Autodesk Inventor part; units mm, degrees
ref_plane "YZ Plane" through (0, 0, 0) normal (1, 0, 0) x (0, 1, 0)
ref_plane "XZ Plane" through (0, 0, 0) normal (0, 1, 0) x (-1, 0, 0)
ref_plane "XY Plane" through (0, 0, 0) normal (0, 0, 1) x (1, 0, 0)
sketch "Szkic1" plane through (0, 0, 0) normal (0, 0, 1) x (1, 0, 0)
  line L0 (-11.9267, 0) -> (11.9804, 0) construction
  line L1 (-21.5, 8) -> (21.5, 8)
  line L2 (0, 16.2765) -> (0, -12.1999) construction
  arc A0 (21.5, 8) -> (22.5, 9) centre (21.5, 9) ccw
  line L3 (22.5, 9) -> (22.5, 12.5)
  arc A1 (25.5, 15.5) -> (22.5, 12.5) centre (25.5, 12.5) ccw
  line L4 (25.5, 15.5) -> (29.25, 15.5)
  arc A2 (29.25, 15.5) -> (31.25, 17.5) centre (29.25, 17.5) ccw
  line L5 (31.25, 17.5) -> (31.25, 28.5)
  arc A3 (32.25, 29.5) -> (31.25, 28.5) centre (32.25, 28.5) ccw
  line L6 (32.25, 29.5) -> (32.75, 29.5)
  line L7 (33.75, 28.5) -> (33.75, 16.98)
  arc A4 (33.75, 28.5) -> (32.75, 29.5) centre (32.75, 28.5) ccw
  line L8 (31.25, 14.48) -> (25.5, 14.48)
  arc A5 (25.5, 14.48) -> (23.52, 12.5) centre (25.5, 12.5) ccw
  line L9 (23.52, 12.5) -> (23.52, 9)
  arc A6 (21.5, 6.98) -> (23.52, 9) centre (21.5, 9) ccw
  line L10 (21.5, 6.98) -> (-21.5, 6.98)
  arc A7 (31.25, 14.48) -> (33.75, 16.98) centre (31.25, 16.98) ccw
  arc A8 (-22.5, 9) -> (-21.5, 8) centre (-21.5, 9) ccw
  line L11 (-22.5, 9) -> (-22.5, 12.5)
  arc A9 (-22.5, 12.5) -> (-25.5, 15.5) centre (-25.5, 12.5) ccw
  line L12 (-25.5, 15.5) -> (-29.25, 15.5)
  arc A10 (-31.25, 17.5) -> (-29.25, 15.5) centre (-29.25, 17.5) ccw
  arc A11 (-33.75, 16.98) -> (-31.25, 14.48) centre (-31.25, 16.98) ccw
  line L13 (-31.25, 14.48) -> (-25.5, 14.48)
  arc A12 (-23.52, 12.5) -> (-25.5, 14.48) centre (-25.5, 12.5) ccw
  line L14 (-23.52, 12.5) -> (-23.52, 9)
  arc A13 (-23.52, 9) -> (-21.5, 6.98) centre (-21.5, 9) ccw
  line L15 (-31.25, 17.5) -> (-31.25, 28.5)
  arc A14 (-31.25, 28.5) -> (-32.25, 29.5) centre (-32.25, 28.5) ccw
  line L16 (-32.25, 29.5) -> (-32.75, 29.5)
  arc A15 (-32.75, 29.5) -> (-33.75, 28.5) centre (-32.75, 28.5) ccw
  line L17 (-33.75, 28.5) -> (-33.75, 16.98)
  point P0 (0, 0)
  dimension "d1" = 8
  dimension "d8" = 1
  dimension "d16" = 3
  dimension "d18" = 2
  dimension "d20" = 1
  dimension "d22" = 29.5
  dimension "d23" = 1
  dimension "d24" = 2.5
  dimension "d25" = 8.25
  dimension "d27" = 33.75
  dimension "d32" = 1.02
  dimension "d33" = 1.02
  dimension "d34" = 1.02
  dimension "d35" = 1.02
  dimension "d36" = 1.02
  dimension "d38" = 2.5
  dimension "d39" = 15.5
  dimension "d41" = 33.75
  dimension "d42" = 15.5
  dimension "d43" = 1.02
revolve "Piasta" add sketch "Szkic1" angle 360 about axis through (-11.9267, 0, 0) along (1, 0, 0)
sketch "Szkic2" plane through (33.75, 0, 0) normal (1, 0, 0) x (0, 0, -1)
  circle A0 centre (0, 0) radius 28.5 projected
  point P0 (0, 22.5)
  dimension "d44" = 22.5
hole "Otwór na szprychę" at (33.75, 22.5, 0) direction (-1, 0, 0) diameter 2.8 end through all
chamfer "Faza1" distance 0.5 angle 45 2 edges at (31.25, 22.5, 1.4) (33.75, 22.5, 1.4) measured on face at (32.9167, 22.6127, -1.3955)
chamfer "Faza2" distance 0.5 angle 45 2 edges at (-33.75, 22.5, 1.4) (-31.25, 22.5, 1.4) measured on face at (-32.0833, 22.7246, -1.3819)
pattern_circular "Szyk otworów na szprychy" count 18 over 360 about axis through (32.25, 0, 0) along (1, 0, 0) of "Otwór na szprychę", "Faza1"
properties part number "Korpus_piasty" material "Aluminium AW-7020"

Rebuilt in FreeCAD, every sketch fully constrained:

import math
import FreeCAD as App
import Part
import Sketcher
Q = App.Units.Quantity


def edges_at(feature, points):
    """Names of the edges that pass closest to the given points."""
    edges = feature.Shape.Edges
    near = lambda p: min(range(len(edges)), key=lambda i: edges[i].distToShape(Part.Vertex(*p))[0])
    return sorted({f"Edge{near(p) + 1}" for p in points})

doc = App.newDocument("Part")
body = doc.addObject("PartDesign::Body", "Body")

sketch1 = doc.addObject("Sketcher::SketchObject", "Sketch")
body.addObject(sketch1)
sketch1.AttachmentSupport = (doc.XY_Plane, [""])
sketch1.MapMode = "FlatFace"
sketch1.addGeometry(Part.LineSegment(App.Vector(21.5, 8, 0), App.Vector(-21.5, 8, 0)), False)
sketch1.addGeometry(Part.ArcOfCircle(Part.Circle(App.Vector(-21.5, 9, 0), App.Vector(0, 0, 1), 1), math.radians(180), math.radians(270)), False)
sketch1.addGeometry(Part.LineSegment(App.Vector(-22.5, 9, 0), App.Vector(-22.5, 12.5, 0)), False)
sketch1.addGeometry(Part.ArcOfCircle(Part.Circle(App.Vector(-25.5, 12.5, 0), App.Vector(0, 0, 1), 3), math.radians(0), math.radians(90)), False)
sketch1.addGeometry(Part.LineSegment(App.Vector(-25.5, 15.5, 0), App.Vector(-29.2, 15.5, 0)), False)
sketch1.addGeometry(Part.ArcOfCircle(Part.Circle(App.Vector(-29.2, 17.5, 0), App.Vector(0, 0, 1), 2), math.radians(180), math.radians(270)), False)
sketch1.addGeometry(Part.LineSegment(App.Vector(-31.2, 17.5, 0), App.Vector(-31.2, 28.5, 0)), False)
sketch1.addGeometry(Part.ArcOfCircle(Part.Circle(App.Vector(-32.2, 28.5, 0), App.Vector(0, 0, 1), 1), math.radians(0), math.radians(90)), False)
sketch1.addGeometry(Part.LineSegment(App.Vector(-32.2, 29.5, 0), App.Vector(-32.8, 29.5, 0)), False)
sketch1.addGeometry(Part.ArcOfCircle(Part.Circle(App.Vector(-32.8, 28.5, 0), App.Vector(0, 0, 1), 1), math.radians(90), math.radians(180)), False)
sketch1.addGeometry(Part.LineSegment(App.Vector(-33.8, 28.5, 0), App.Vector(-33.8, 17, 0)), False)
sketch1.addGeometry(Part.ArcOfCircle(Part.Circle(App.Vector(-31.2, 17, 0), App.Vector(0, 0, 1), 2.5), math.radians(180), math.radians(270)), False)
sketch1.addGeometry(Part.LineSegment(App.Vector(-31.2, 14.5, 0), App.Vector(-25.5, 14.5, 0)), False)
sketch1.addGeometry(Part.ArcOfCircle(Part.Circle(App.Vector(-25.5, 12.5, 0), App.Vector(0, 0, 1), 2), math.radians(0), math.radians(90)), False)
sketch1.addGeometry(Part.LineSegment(App.Vector(-23.5, 12.5, 0), App.Vector(-23.5, 9, 0)), False)
sketch1.addGeometry(Part.ArcOfCircle(Part.Circle(App.Vector(-21.5, 9, 0), App.Vector(0, 0, 1), 2), math.radians(180), math.radians(270)), False)
sketch1.addGeometry(Part.LineSegment(App.Vector(-21.5, 7, 0), App.Vector(21.5, 7, 0)), False)
sketch1.addGeometry(Part.ArcOfCircle(Part.Circle(App.Vector(21.5, 9, 0), App.Vector(0, 0, 1), 2), math.radians(-90), math.radians(0)), False)
sketch1.addGeometry(Part.LineSegment(App.Vector(23.5, 9, 0), App.Vector(23.5, 12.5, 0)), False)
sketch1.addGeometry(Part.ArcOfCircle(Part.Circle(App.Vector(25.5, 12.5, 0), App.Vector(0, 0, 1), 2), math.radians(90), math.radians(180)), False)
sketch1.addGeometry(Part.LineSegment(App.Vector(25.5, 14.5, 0), App.Vector(31.2, 14.5, 0)), False)
sketch1.addGeometry(Part.ArcOfCircle(Part.Circle(App.Vector(31.2, 17, 0), App.Vector(0, 0, 1), 2.5), math.radians(-90), math.radians(0)), False)
sketch1.addGeometry(Part.LineSegment(App.Vector(33.8, 17, 0), App.Vector(33.8, 28.5, 0)), False)
sketch1.addGeometry(Part.ArcOfCircle(Part.Circle(App.Vector(32.8, 28.5, 0), App.Vector(0, 0, 1), 1), math.radians(0), math.radians(90)), False)
sketch1.addGeometry(Part.LineSegment(App.Vector(32.8, 29.5, 0), App.Vector(32.2, 29.5, 0)), False)
sketch1.addGeometry(Part.ArcOfCircle(Part.Circle(App.Vector(32.2, 28.5, 0), App.Vector(0, 0, 1), 1), math.radians(90), math.radians(180)), False)
sketch1.addGeometry(Part.LineSegment(App.Vector(31.2, 28.5, 0), App.Vector(31.2, 17.5, 0)), False)
sketch1.addGeometry(Part.ArcOfCircle(Part.Circle(App.Vector(29.2, 17.5, 0), App.Vector(0, 0, 1), 2), math.radians(-90), math.radians(0)), False)
sketch1.addGeometry(Part.LineSegment(App.Vector(29.2, 15.5, 0), App.Vector(25.5, 15.5, 0)), False)
sketch1.addGeometry(Part.ArcOfCircle(Part.Circle(App.Vector(25.5, 12.5, 0), App.Vector(0, 0, 1), 3), math.radians(90), math.radians(180)), False)
sketch1.addGeometry(Part.LineSegment(App.Vector(22.5, 12.5, 0), App.Vector(22.5, 9, 0)), False)
sketch1.addGeometry(Part.ArcOfCircle(Part.Circle(App.Vector(21.5, 9, 0), App.Vector(0, 0, 1), 1), math.radians(-90), math.radians(0)), False)
sketch1.addConstraint(Sketcher.Constraint("Tangent", 0, 2, 1, 2))
sketch1.addConstraint(Sketcher.Constraint("Tangent", 1, 1, 2, 1))
sketch1.addConstraint(Sketcher.Constraint("Tangent", 2, 2, 3, 1))
sketch1.addConstraint(Sketcher.Constraint("Tangent", 3, 2, 4, 1))
sketch1.addConstraint(Sketcher.Constraint("Tangent", 4, 2, 5, 2))
sketch1.addConstraint(Sketcher.Constraint("Tangent", 5, 1, 6, 1))
sketch1.addConstraint(Sketcher.Constraint("Tangent", 6, 2, 7, 1))
sketch1.addConstraint(Sketcher.Constraint("Tangent", 7, 2, 8, 1))
sketch1.addConstraint(Sketcher.Constraint("Tangent", 8, 2, 9, 1))
sketch1.addConstraint(Sketcher.Constraint("Tangent", 9, 2, 10, 1))
sketch1.addConstraint(Sketcher.Constraint("Tangent", 10, 2, 11, 1))
sketch1.addConstraint(Sketcher.Constraint("Tangent", 11, 2, 12, 1))
sketch1.addConstraint(Sketcher.Constraint("Tangent", 12, 2, 13, 2))
sketch1.addConstraint(Sketcher.Constraint("Tangent", 13, 1, 14, 1))
sketch1.addConstraint(Sketcher.Constraint("Tangent", 14, 2, 15, 1))
sketch1.addConstraint(Sketcher.Constraint("Tangent", 15, 2, 16, 1))
sketch1.addConstraint(Sketcher.Constraint("Tangent", 16, 2, 17, 1))
sketch1.addConstraint(Sketcher.Constraint("Tangent", 17, 2, 18, 1))
sketch1.addConstraint(Sketcher.Constraint("Tangent", 18, 2, 19, 2))
sketch1.addConstraint(Sketcher.Constraint("Tangent", 19, 1, 20, 1))
sketch1.addConstraint(Sketcher.Constraint("Tangent", 20, 2, 21, 1))
sketch1.addConstraint(Sketcher.Constraint("Tangent", 21, 2, 22, 1))
sketch1.addConstraint(Sketcher.Constraint("Tangent", 22, 2, 23, 1))
sketch1.addConstraint(Sketcher.Constraint("Tangent", 23, 2, 24, 1))
sketch1.addConstraint(Sketcher.Constraint("Tangent", 24, 2, 25, 1))
sketch1.addConstraint(Sketcher.Constraint("Tangent", 25, 2, 26, 1))
sketch1.addConstraint(Sketcher.Constraint("Tangent", 26, 2, 27, 2))
sketch1.addConstraint(Sketcher.Constraint("Tangent", 27, 1, 28, 1))
sketch1.addConstraint(Sketcher.Constraint("Tangent", 28, 2, 29, 1))
sketch1.addConstraint(Sketcher.Constraint("Tangent", 29, 2, 30, 1))
sketch1.addConstraint(Sketcher.Constraint("Tangent", 30, 2, 31, 2))
sketch1.addConstraint(Sketcher.Constraint("Tangent", 31, 1, 0, 1))
sketch1.addConstraint(Sketcher.Constraint("Horizontal", 0))
sketch1.addConstraint(Sketcher.Constraint("Vertical", 2))
sketch1.addConstraint(Sketcher.Constraint("Horizontal", 4))
sketch1.addConstraint(Sketcher.Constraint("Vertical", 6))
sketch1.addConstraint(Sketcher.Constraint("Horizontal", 8))
sketch1.addConstraint(Sketcher.Constraint("Vertical", 10))
sketch1.addConstraint(Sketcher.Constraint("Horizontal", 12))
sketch1.addConstraint(Sketcher.Constraint("Vertical", 14))
sketch1.addConstraint(Sketcher.Constraint("Horizontal", 16))
sketch1.addConstraint(Sketcher.Constraint("Vertical", 18))
sketch1.addConstraint(Sketcher.Constraint("Horizontal", 20))
sketch1.addConstraint(Sketcher.Constraint("Vertical", 22))
sketch1.addConstraint(Sketcher.Constraint("Horizontal", 24))
sketch1.addConstraint(Sketcher.Constraint("Vertical", 26))
sketch1.addConstraint(Sketcher.Constraint("Horizontal", 28))
sketch1.addConstraint(Sketcher.Constraint("Vertical", 30))
sketch1.addConstraint(Sketcher.Constraint("Coincident", 13, 3, 3, 3))
sketch1.addConstraint(Sketcher.Constraint("Coincident", 15, 3, 1, 3))
sketch1.addConstraint(Sketcher.Constraint("Coincident", 29, 3, 19, 3))
sketch1.addConstraint(Sketcher.Constraint("Coincident", 31, 3, 17, 3))
sketch1.addConstraint(Sketcher.Constraint("Equal", 1, 7))
sketch1.addConstraint(Sketcher.Constraint("Equal", 7, 9))
sketch1.addConstraint(Sketcher.Constraint("Equal", 15, 17))
sketch1.addConstraint(Sketcher.Constraint("Equal", 13, 19))
sketch1.addConstraint(Sketcher.Constraint("Equal", 11, 21))
sketch1.addConstraint(Sketcher.Constraint("Equal", 9, 23))
sketch1.addConstraint(Sketcher.Constraint("Equal", 23, 25))
sketch1.addConstraint(Sketcher.Constraint("Equal", 5, 27))
sketch1.addConstraint(Sketcher.Constraint("Symmetric", 3, 3, 19, 3, -2))
sketch1.addConstraint(Sketcher.Constraint("Symmetric", 9, 3, 23, 3, -2))
sketch1.addConstraint(Sketcher.Constraint("Vertical", 11, 3, 5, 1))
sketch1.addConstraint(Sketcher.Constraint("Vertical", 20, 2, 25, 2))
sketch1.addConstraint(Sketcher.Constraint("Radius", 1, Q("1 mm")))
sketch1.addConstraint(Sketcher.Constraint("Radius", 3, Q("3 mm")))
sketch1.addConstraint(Sketcher.Constraint("Radius", 5, Q("2 mm")))
sketch1.addConstraint(Sketcher.Constraint("Radius", 11, Q("2.5 mm")))
sketch1.addConstraint(Sketcher.Constraint("DistanceY", -1, 1, 0, 2, Q("8 mm")))
sketch1.addConstraint(Sketcher.Constraint("DistanceY", -1, 1, 3, 2, Q("15.5 mm")))
sketch1.addConstraint(Sketcher.Constraint("DistanceY", -1, 1, 7, 2, Q("29.5 mm")))
sketch1.addConstraint(Sketcher.Constraint("DistanceX", 0, 2, 0, 1, Q("43 mm")))
sketch1.addConstraint(Sketcher.Constraint("DistanceX", 9, 2, -1, 1, Q("33.75 mm")))
sketch1.addConstraint(Sketcher.Constraint("Radius", 13, Q("1.98 mm")))
revolution = doc.addObject("PartDesign::Revolution", "Revolution")
body.addObject(revolution)
revolution.Profile = sketch1
revolution.ReferenceAxis = (sketch1, ["H_Axis"])
revolution.Angle = 360

sketch2 = doc.addObject("Sketcher::SketchObject", "Sketch001")
body.addObject(sketch2)
sketch2.AttachmentSupport = (doc.YZ_Plane, [""])
sketch2.MapMode = "FlatFace"
sketch2.AttachmentOffset = App.Placement(App.Vector(0, 0, 33.75), App.Rotation())
sketch2.addGeometry(Part.Circle(App.Vector(22.5, 0, 0), App.Vector(0, 0, 1), 1.4), False)
sketch2.addConstraint(Sketcher.Constraint("PointOnObject", 0, 3, -1))
sketch2.addConstraint(Sketcher.Constraint("Diameter", 0, Q("2.8 mm")))
sketch2.addConstraint(Sketcher.Constraint("DistanceX", -1, 1, 0, 3, Q("22.5 mm")))
doc.recompute()
hole = doc.addObject("PartDesign::Hole", "Hole")
body.addObject(hole)
hole.Profile = sketch2
hole.ThreadType = "None"
hole.Diameter = 2.8
hole.DepthType = "ThroughAll"
doc.recompute()

chamfer = doc.addObject("PartDesign::Chamfer", "Chamfer")
body.addObject(chamfer)
chamfer.Base = (hole, edges_at(hole, [(31.25, 22.5, 1.4), (33.75, 22.5, 1.4)]))
chamfer.Size = 0.5
doc.recompute()

chamfer2 = doc.addObject("PartDesign::Chamfer", "Chamfer001")
body.addObject(chamfer2)
chamfer2.Base = (chamfer, edges_at(chamfer, [(-33.75, 22.5, 1.4), (-31.25, 22.5, 1.4)]))
chamfer2.Size = 0.5
doc.recompute()

polarpattern = doc.addObject("PartDesign::PolarPattern", "PolarPattern")
body.addObject(polarpattern)
polarpattern.Originals = [hole, chamfer]
polarpattern.Axis = (doc.X_Axis, [""])
polarpattern.Angle = 360
polarpattern.Occurrences = 18
body.Tip = polarpattern

doc.recompute()
